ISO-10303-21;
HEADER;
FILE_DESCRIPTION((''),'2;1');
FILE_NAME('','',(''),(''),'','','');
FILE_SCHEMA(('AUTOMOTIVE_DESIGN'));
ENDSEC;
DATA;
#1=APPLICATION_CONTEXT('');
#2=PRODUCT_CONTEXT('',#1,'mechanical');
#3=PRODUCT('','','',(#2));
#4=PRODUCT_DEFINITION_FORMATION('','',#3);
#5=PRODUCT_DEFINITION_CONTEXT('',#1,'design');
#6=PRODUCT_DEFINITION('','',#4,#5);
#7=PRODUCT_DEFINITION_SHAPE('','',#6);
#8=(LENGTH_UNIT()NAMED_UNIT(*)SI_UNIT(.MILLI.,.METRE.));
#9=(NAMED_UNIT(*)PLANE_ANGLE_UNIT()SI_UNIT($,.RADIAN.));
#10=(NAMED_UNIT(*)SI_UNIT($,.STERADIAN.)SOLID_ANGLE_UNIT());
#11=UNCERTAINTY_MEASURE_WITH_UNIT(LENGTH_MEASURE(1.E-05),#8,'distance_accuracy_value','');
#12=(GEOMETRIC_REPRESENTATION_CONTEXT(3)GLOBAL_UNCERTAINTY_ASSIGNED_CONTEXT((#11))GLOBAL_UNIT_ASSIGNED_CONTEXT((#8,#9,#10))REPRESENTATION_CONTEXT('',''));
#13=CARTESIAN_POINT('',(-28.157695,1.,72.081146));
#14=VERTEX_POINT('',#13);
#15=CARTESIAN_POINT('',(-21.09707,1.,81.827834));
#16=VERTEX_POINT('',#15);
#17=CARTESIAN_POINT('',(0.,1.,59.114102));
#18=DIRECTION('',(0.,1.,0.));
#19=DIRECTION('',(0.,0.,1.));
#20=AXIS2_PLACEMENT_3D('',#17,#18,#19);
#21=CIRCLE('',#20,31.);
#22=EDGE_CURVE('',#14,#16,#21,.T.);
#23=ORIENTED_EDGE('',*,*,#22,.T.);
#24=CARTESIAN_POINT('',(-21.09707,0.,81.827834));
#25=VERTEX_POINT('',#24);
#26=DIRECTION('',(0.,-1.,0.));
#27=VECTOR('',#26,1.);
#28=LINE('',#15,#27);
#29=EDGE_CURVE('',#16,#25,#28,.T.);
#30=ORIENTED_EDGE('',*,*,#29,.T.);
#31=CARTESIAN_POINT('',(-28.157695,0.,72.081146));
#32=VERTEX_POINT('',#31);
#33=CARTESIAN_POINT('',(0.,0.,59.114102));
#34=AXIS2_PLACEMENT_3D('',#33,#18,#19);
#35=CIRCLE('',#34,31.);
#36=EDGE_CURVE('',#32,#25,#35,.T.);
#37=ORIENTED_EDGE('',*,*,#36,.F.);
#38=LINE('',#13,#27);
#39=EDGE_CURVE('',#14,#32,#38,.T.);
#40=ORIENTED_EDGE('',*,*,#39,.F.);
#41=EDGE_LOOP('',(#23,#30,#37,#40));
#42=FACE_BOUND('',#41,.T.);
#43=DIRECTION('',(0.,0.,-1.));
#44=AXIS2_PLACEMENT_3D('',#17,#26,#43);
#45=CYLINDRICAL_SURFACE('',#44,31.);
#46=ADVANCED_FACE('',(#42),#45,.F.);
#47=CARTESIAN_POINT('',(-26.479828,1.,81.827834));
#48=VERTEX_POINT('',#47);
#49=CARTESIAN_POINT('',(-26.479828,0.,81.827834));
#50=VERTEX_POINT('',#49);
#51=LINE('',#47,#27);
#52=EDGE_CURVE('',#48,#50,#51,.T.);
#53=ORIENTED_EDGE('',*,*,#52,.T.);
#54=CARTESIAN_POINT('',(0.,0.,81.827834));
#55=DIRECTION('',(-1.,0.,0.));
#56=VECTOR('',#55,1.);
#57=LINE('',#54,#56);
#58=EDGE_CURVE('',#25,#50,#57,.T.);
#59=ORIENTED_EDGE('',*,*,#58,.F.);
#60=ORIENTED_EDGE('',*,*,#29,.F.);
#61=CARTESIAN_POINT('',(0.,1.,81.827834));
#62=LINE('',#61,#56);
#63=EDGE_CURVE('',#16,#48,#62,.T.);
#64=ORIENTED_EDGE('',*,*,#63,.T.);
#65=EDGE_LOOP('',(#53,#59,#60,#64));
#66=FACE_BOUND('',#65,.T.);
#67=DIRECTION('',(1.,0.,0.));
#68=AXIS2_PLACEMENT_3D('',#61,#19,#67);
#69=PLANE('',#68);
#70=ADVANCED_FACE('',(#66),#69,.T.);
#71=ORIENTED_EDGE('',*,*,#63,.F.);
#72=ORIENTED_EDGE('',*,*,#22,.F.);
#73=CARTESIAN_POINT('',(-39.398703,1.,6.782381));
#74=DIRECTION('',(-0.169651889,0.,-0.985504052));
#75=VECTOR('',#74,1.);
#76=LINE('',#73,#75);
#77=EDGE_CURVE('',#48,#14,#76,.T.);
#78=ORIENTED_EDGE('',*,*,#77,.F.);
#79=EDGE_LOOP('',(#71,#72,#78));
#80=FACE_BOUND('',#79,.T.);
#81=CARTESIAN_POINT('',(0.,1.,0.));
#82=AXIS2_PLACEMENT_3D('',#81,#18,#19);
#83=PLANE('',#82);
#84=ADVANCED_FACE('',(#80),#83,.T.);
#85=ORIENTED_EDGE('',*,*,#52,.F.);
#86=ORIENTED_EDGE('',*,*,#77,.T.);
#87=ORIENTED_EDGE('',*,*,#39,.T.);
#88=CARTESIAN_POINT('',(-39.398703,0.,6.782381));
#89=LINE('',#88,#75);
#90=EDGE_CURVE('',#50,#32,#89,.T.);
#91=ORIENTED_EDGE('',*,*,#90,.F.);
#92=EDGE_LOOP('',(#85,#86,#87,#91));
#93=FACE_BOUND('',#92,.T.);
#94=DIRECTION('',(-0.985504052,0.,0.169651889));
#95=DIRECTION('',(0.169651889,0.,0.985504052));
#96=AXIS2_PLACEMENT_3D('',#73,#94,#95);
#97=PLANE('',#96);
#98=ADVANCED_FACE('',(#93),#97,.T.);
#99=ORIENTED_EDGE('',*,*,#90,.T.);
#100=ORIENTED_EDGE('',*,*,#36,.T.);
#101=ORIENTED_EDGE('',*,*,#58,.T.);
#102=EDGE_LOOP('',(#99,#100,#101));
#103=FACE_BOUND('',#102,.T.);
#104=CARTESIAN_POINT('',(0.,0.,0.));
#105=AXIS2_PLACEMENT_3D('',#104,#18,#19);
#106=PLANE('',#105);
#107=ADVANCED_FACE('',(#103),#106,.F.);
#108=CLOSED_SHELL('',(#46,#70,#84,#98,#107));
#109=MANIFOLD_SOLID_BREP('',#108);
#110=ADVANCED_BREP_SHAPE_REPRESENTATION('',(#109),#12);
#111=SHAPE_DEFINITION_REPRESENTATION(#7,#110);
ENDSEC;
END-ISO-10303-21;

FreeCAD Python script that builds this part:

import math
import FreeCAD as App
import Part
import Sketcher

V = App.Vector

doc = App.newDocument("Part")
body = doc.addObject("PartDesign::Body", "Body")

sketch1 = doc.addObject("Sketcher::SketchObject", "Sketch")
body.addObject(sketch1)
sketch1.AttachmentSupport = (doc.XZ_Plane, [""])
sketch1.MapMode = "FlatFace"
sketch1.addGeometry([
    Part.ArcOfCircle(Part.Circle(V(0, 59.114102, 0), V(0, 0, 1), 31), math.radians(132.886688), math.radians(155.273216)),
    Part.LineSegment(V(-28.157695, 72.081146, 0), V(-26.479828, 81.827834, 0)),
    Part.LineSegment(V(-26.479828, 81.827834, 0), V(-21.09707, 81.827834, 0)),
], False)
sketch1.addConstraint([
    Sketcher.Constraint("Coincident", 0, 2, 1, 1),
    Sketcher.Constraint("Coincident", 1, 2, 2, 1),
    Sketcher.Constraint("Coincident", 2, 2, 0, 1),
    Sketcher.Constraint("Horizontal", 2),
    Sketcher.Constraint("PointOnObject", 0, 3, -2),
    Sketcher.Constraint("Radius", 0, 31.0),
    Sketcher.Constraint("DistanceX", 2, 1, 2, 2, 5.382758),
    Sketcher.Constraint("DistanceX", 1, 2, -1, 1, 26.479828),
    Sketcher.Constraint("DistanceY", 0, 2, 1, 2, 9.746688),
    Sketcher.Constraint("DistanceY", -1, 1, 0, 3, 59.114102),
])
pad1 = doc.addObject("PartDesign::Pad", "Pad")
body.addObject(pad1)
pad1.Profile = sketch1
pad1.Length = 1
pad1.Reversed = True

doc.recompute()
